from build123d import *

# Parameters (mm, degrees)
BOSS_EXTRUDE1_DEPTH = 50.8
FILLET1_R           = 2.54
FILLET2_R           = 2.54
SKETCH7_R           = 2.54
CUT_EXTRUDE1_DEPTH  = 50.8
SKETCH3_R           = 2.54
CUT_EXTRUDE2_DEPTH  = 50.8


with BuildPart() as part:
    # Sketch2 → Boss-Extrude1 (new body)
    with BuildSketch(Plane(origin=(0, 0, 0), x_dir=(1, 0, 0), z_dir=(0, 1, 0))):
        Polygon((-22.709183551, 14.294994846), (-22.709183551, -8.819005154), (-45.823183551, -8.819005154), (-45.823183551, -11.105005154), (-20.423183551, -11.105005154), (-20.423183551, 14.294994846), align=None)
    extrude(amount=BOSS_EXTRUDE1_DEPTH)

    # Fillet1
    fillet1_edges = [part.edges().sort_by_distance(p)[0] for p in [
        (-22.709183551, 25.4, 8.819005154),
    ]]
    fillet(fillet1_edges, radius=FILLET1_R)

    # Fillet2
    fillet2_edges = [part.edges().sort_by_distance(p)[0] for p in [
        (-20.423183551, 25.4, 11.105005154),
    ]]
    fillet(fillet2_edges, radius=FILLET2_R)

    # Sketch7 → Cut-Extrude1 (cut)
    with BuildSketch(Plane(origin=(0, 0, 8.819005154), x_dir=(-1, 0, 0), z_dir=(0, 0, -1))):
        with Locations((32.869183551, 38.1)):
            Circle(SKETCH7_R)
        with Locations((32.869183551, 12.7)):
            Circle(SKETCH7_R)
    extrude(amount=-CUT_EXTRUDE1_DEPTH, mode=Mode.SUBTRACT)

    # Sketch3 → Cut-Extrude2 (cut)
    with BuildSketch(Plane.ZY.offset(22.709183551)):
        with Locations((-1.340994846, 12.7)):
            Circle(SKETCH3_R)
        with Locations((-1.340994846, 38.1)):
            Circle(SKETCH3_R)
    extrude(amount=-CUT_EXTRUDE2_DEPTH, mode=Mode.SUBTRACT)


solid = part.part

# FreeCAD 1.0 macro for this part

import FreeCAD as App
import Part
import Sketcher
Q = App.Units.Quantity


def edges_at(feature, points):
    """Names of the edges that pass closest to the given points."""
    edges = feature.Shape.Edges
    near = lambda p: min(range(len(edges)), key=lambda i: edges[i].distToShape(Part.Vertex(*p))[0])
    return sorted({f"Edge{near(p) + 1}" for p in points})

doc = App.newDocument("Part")
body = doc.addObject("PartDesign::Body", "Body")

# Sketch on XZ plane
sketch1 = doc.addObject("Sketcher::SketchObject", "Sketch")
body.addObject(sketch1)
sketch1.AttachmentSupport = (doc.XZ_Plane, [""])
sketch1.MapMode = "FlatFace"
sketch1.addGeometry(Part.LineSegment(App.Vector(-22.7, -14.3, 0), App.Vector(-22.7, 8.8, 0)), False)
sketch1.addGeometry(Part.LineSegment(App.Vector(-22.7, 8.8, 0), App.Vector(-45.8, 8.8, 0)), False)
sketch1.addGeometry(Part.LineSegment(App.Vector(-45.8, 8.8, 0), App.Vector(-45.8, 11.1, 0)), False)
sketch1.addGeometry(Part.LineSegment(App.Vector(-45.8, 11.1, 0), App.Vector(-20.4, 11.1, 0)), False)
sketch1.addGeometry(Part.LineSegment(App.Vector(-20.4, 11.1, 0), App.Vector(-20.4, -14.3, 0)), False)
sketch1.addGeometry(Part.LineSegment(App.Vector(-20.4, -14.3, 0), App.Vector(-22.7, -14.3, 0)), False)
sketch1.addConstraint(Sketcher.Constraint("Coincident", 0, 2, 1, 1))
sketch1.addConstraint(Sketcher.Constraint("Coincident", 1, 2, 2, 1))
sketch1.addConstraint(Sketcher.Constraint("Coincident", 2, 2, 3, 1))
sketch1.addConstraint(Sketcher.Constraint("Coincident", 3, 2, 4, 1))
sketch1.addConstraint(Sketcher.Constraint("Coincident", 4, 2, 5, 1))
sketch1.addConstraint(Sketcher.Constraint("Coincident", 5, 2, 0, 1))
sketch1.addConstraint(Sketcher.Constraint("Vertical", 0))
sketch1.addConstraint(Sketcher.Constraint("Horizontal", 1))
sketch1.addConstraint(Sketcher.Constraint("Vertical", 2))
sketch1.addConstraint(Sketcher.Constraint("Horizontal", 3))
sketch1.addConstraint(Sketcher.Constraint("Vertical", 4))
sketch1.addConstraint(Sketcher.Constraint("Horizontal", 5))
sketch1.addConstraint(Sketcher.Constraint("Equal", 1, 0))
sketch1.addConstraint(Sketcher.Constraint("Equal", 5, 2))
sketch1.addConstraint(Sketcher.Constraint("DistanceX", 3, 1, 3, 2, Q("1 in")))
sketch1.addConstraint(Sketcher.Constraint("DistanceX", 1, 2, 1, 1, Q("0.91 in")))
sketch1.addConstraint(Sketcher.Constraint("DistanceX", 0, 2, -1, 1, 22.709184))
sketch1.addConstraint(Sketcher.Constraint("DistanceY", -1, 1, 0, 2, 8.819005))
pad1 = doc.addObject("PartDesign::Pad", "Pad")
body.addObject(pad1)
pad1.Profile = sketch1
pad1.Length = Q("2 in")
pad1.Reversed = True
doc.recompute()

fillet = doc.addObject("PartDesign::Fillet", "Fillet")
body.addObject(fillet)
fillet.Base = (pad1, edges_at(pad1, [(-22.709, 25.4, 8.819)]))
fillet.Radius = Q("0.1 in")
doc.recompute()

fillet2 = doc.addObject("PartDesign::Fillet", "Fillet001")
body.addObject(fillet2)
fillet2.Base = (fillet, edges_at(fillet, [(-20.423, 25.4, 11.105)]))
fillet2.Radius = Q("0.1 in")

# Sketch on XY plane
sketch2 = doc.addObject("Sketcher::SketchObject", "Sketch001")
body.addObject(sketch2)
sketch2.AttachmentSupport = (doc.XY_Plane, [""])
sketch2.MapMode = "FlatFace"
sketch2.AttachmentOffset = App.Placement(App.Vector(0, 0, 8.819005), App.Rotation())
sketch2.addGeometry(Part.Circle(App.Vector(-32.9, 38.1, 0), App.Vector(0, 0, 1), 2.5), False)
sketch2.addGeometry(Part.Circle(App.Vector(-32.9, 12.7, 0), App.Vector(0, 0, 1), 2.5), False)
sketch2.addConstraint(Sketcher.Constraint("Equal", 0, 1))
sketch2.addConstraint(Sketcher.Constraint("Vertical", 0, 3, 1, 3))
sketch2.addConstraint(Sketcher.Constraint("Diameter", 0, Q("0.2 in")))
sketch2.addConstraint(Sketcher.Constraint("DistanceY", 1, 3, 0, 3, Q("1 in")))
sketch2.addConstraint(Sketcher.Constraint("DistanceY", -1, 1, 0, 3, Q("1.5 in")))
sketch2.addConstraint(Sketcher.Constraint("DistanceX", 0, 3, -1, 1, 32.869184))
pocket1 = doc.addObject("PartDesign::Pocket", "Pocket")
body.addObject(pocket1)
pocket1.Profile = sketch2
pocket1.Length = Q("2 in")
pocket1.Reversed = True

# Sketch on YZ plane
sketch3 = doc.addObject("Sketcher::SketchObject", "Sketch002")
body.addObject(sketch3)
sketch3.AttachmentSupport = (doc.YZ_Plane, [""])
sketch3.MapMode = "FlatFace"
sketch3.AttachmentOffset = App.Placement(App.Vector(0, 0, -22.709184), App.Rotation())
sketch3.addGeometry(Part.Circle(App.Vector(12.7, -1.3, 0), App.Vector(0, 0, 1), 2.5), False)
sketch3.addGeometry(Part.Circle(App.Vector(38.1, -1.3, 0), App.Vector(0, 0, 1), 2.5), False)
sketch3.addConstraint(Sketcher.Constraint("Equal", 0, 1))
sketch3.addConstraint(Sketcher.Constraint("Horizontal", 0, 3, 1, 3))
sketch3.addConstraint(Sketcher.Constraint("Diameter", 0, Q("0.2 in")))
sketch3.addConstraint(Sketcher.Constraint("DistanceX", 0, 3, 1, 3, Q("1 in")))
sketch3.addConstraint(Sketcher.Constraint("DistanceX", -1, 1, 0, 3, Q("0.5 in")))
sketch3.addConstraint(Sketcher.Constraint("DistanceY", 0, 3, -1, 1, 1.340995))
pocket2 = doc.addObject("PartDesign::Pocket", "Pocket001")
body.addObject(pocket2)
pocket2.Profile = sketch3
pocket2.Length = Q("2 in")
pocket2.Reversed = True

doc.recompute()
